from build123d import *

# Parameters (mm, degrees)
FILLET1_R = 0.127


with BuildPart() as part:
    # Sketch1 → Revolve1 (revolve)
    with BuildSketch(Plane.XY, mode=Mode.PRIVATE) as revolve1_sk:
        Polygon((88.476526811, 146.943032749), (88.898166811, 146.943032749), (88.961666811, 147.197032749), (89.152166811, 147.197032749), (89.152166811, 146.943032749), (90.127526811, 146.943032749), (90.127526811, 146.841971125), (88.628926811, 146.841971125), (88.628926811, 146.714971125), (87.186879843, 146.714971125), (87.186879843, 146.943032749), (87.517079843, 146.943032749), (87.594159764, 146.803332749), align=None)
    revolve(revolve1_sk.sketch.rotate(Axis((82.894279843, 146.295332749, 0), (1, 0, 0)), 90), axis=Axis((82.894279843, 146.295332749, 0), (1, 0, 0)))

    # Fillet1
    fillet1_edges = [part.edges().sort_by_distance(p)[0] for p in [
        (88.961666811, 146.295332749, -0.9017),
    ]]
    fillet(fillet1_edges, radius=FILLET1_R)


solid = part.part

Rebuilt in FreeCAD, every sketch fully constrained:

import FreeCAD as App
import Part
import Sketcher
from FreeCAD import Vector
Q = App.Units.Quantity


def edges_at(feature, points):
    """Names of the edges that pass closest to the given points."""
    edges = feature.Shape.Edges
    near = lambda p: min(range(len(edges)), key=lambda i: edges[i].distToShape(Part.Vertex(*p))[0])
    return sorted({f"Edge{near(p) + 1}" for p in points})

doc = App.newDocument("Part")
params = doc.addObject("Spreadsheet::Sheet", "Params")
for row, (alias, value) in enumerate([
    ("sketch1_height", "0.01 in"),
    ("sketch1_width", "0.013 in"),
    ("sketch1_width2", "0.059 in"),
    ("sketch1_height2", "0.005 in"),
    ("revolution_angle", "360 deg"),
    ("fillet_radius", "0.005 in"),
], start=1):
    params.set(f"A{row}", alias)
    params.set(f"B{row}", "=" + value)
    params.setAlias(f"B{row}", alias)

body = doc.addObject("PartDesign::Body", "Body")

sketch1 = body.newObject("Sketcher::SketchObject", "Sketch")
sketch1.AttachmentSupport = (doc.getObject("XY_Plane"), [""])
sketch1.MapMode = "FlatFace"
sketch1.addGeometry(Part.LineSegment(Vector(88.9, 146.94, 0), Vector(88.48, 146.94, 0)), False)
sketch1.addGeometry(Part.LineSegment(Vector(88.48, 146.94, 0), Vector(87.59, 146.8, 0)), False)
sketch1.addGeometry(Part.LineSegment(Vector(87.59, 146.8, 0), Vector(87.52, 146.94, 0)), False)
sketch1.addGeometry(Part.LineSegment(Vector(87.52, 146.94, 0), Vector(87.19, 146.94, 0)), False)
sketch1.addGeometry(Part.LineSegment(Vector(87.19, 146.94, 0), Vector(87.19, 146.71, 0)), False)
sketch1.addGeometry(Part.LineSegment(Vector(87.19, 146.71, 0), Vector(88.63, 146.71, 0)), False)
sketch1.addGeometry(Part.LineSegment(Vector(88.63, 146.71, 0), Vector(88.63, 146.84, 0)), False)
sketch1.addGeometry(Part.LineSegment(Vector(88.63, 146.84, 0), Vector(90.13, 146.84, 0)), False)
sketch1.addGeometry(Part.LineSegment(Vector(90.13, 146.84, 0), Vector(90.13, 146.94, 0)), False)
sketch1.addGeometry(Part.LineSegment(Vector(90.13, 146.94, 0), Vector(89.15, 146.94, 0)), False)
sketch1.addGeometry(Part.LineSegment(Vector(89.15, 146.94, 0), Vector(89.15, 147.2, 0)), False)
sketch1.addGeometry(Part.LineSegment(Vector(89.15, 147.2, 0), Vector(88.96, 147.2, 0)), False)
sketch1.addGeometry(Part.LineSegment(Vector(88.96, 147.2, 0), Vector(88.9, 146.94, 0)), False)
sketch1.addGeometry(Part.LineSegment(Vector(87.19, 146.3, 0), Vector(90.13, 146.3, 0)), True)
sketch1.addConstraint(Sketcher.Constraint("Coincident", 0, 2, 1, 1))
sketch1.addConstraint(Sketcher.Constraint("Coincident", 1, 2, 2, 1))
sketch1.addConstraint(Sketcher.Constraint("Coincident", 2, 2, 3, 1))
sketch1.addConstraint(Sketcher.Constraint("Coincident", 3, 2, 4, 1))
sketch1.addConstraint(Sketcher.Constraint("Coincident", 4, 2, 5, 1))
sketch1.addConstraint(Sketcher.Constraint("Coincident", 5, 2, 6, 1))
sketch1.addConstraint(Sketcher.Constraint("Coincident", 6, 2, 7, 1))
sketch1.addConstraint(Sketcher.Constraint("Coincident", 7, 2, 8, 1))
sketch1.addConstraint(Sketcher.Constraint("Coincident", 8, 2, 9, 1))
sketch1.addConstraint(Sketcher.Constraint("Coincident", 9, 2, 10, 1))
sketch1.addConstraint(Sketcher.Constraint("Coincident", 10, 2, 11, 1))
sketch1.addConstraint(Sketcher.Constraint("Coincident", 11, 2, 12, 1))
sketch1.addConstraint(Sketcher.Constraint("Coincident", 12, 2, 0, 1))
sketch1.addConstraint(Sketcher.Constraint("Horizontal", 0))
sketch1.addConstraint(Sketcher.Constraint("Horizontal", 3))
sketch1.addConstraint(Sketcher.Constraint("Vertical", 4))
sketch1.addConstraint(Sketcher.Constraint("Horizontal", 5))
sketch1.addConstraint(Sketcher.Constraint("Vertical", 6))
sketch1.addConstraint(Sketcher.Constraint("Horizontal", 7))
sketch1.addConstraint(Sketcher.Constraint("Vertical", 8))
sketch1.addConstraint(Sketcher.Constraint("Horizontal", 9))
sketch1.addConstraint(Sketcher.Constraint("Vertical", 10))
sketch1.addConstraint(Sketcher.Constraint("Horizontal", 11))
sketch1.addConstraint(Sketcher.Constraint("Horizontal", 13))
sketch1.addConstraint(Sketcher.Constraint("Horizontal", 0, 2, 2, 2))
sketch1.addConstraint(Sketcher.Constraint("Horizontal", 3, 2, 8, 2))
sketch1.addConstraint(Sketcher.Constraint("Vertical", 4, 2, 13, 1))
sketch1.addConstraint(Sketcher.Constraint("Vertical", 8, 2, 13, 2))
sketch1.addConstraint(Sketcher.Constraint("DistanceY", 10, 1, 10, 2, Q("0.01 in")))
sketch1.addConstraint(Sketcher.Constraint("DistanceX", 3, 2, 3, 1, Q("0.013 in")))
sketch1.addConstraint(Sketcher.Constraint("DistanceX", 7, 1, 7, 2, Q("0.059 in")))
sketch1.addConstraint(Sketcher.Constraint("DistanceY", 6, 1, 6, 2, Q("0.005 in")))
sketch1.addConstraint(Sketcher.Constraint("DistanceX", 12, 2, 9, 2, Q("0.01 in")))
sketch1.addConstraint(Sketcher.Constraint("DistanceY", 13, 1, 1, 2, Q("0.02 in")))
sketch1.addConstraint(Sketcher.Constraint("DistanceX", 0, 2, 0, 1, Q("0.0166 in")))
sketch1.addConstraint(Sketcher.Constraint("DistanceX", 9, 2, 9, 1, Q("0.0384 in")))
sketch1.addConstraint(Sketcher.Constraint("DistanceX", 11, 2, 11, 1, Q("0.0075 in")))
sketch1.addConstraint(Sketcher.Constraint("DistanceY", 1, 2, 0, 2, Q("0.0055 in")))
sketch1.addConstraint(Sketcher.Constraint("DistanceY", 4, 2, 4, 1, Q("0.228062 mm")))
sketch1.addConstraint(Sketcher.Constraint("DistanceX", 5, 1, 5, 2, Q("1.442047 mm")))
sketch1.addConstraint(Sketcher.Constraint("DistanceX", -1, 1, 1, 2, Q("87.59416 mm")))
sketch1.addConstraint(Sketcher.Constraint("DistanceX", -1, 1, 2, 2, Q("87.51708 mm")))
sketch1.addConstraint(Sketcher.Constraint("DistanceY", -1, 1, 4, 2, Q("146.714971 mm")))
sketch1.setExpression("Constraints[28]", "Params.sketch1_height")
sketch1.setExpression("Constraints[29]", "Params.sketch1_width")
sketch1.setExpression("Constraints[30]", "Params.sketch1_width2")
sketch1.setExpression("Constraints[31]", "Params.sketch1_height2")
revolution = body.newObject("PartDesign::Revolution", "Revolution")
revolution.Profile = sketch1
revolution.ReferenceAxis = (sketch1, ["Axis0"])
revolution.setExpression("Angle", "Params.revolution_angle")
doc.recompute()

fillet = body.newObject("PartDesign::Fillet", "Fillet")
fillet.Base = (revolution, edges_at(revolution, [(88.962, 146.295, -0.902)]))
fillet.setExpression("Radius", "Params.fillet_radius")

doc.recompute()
